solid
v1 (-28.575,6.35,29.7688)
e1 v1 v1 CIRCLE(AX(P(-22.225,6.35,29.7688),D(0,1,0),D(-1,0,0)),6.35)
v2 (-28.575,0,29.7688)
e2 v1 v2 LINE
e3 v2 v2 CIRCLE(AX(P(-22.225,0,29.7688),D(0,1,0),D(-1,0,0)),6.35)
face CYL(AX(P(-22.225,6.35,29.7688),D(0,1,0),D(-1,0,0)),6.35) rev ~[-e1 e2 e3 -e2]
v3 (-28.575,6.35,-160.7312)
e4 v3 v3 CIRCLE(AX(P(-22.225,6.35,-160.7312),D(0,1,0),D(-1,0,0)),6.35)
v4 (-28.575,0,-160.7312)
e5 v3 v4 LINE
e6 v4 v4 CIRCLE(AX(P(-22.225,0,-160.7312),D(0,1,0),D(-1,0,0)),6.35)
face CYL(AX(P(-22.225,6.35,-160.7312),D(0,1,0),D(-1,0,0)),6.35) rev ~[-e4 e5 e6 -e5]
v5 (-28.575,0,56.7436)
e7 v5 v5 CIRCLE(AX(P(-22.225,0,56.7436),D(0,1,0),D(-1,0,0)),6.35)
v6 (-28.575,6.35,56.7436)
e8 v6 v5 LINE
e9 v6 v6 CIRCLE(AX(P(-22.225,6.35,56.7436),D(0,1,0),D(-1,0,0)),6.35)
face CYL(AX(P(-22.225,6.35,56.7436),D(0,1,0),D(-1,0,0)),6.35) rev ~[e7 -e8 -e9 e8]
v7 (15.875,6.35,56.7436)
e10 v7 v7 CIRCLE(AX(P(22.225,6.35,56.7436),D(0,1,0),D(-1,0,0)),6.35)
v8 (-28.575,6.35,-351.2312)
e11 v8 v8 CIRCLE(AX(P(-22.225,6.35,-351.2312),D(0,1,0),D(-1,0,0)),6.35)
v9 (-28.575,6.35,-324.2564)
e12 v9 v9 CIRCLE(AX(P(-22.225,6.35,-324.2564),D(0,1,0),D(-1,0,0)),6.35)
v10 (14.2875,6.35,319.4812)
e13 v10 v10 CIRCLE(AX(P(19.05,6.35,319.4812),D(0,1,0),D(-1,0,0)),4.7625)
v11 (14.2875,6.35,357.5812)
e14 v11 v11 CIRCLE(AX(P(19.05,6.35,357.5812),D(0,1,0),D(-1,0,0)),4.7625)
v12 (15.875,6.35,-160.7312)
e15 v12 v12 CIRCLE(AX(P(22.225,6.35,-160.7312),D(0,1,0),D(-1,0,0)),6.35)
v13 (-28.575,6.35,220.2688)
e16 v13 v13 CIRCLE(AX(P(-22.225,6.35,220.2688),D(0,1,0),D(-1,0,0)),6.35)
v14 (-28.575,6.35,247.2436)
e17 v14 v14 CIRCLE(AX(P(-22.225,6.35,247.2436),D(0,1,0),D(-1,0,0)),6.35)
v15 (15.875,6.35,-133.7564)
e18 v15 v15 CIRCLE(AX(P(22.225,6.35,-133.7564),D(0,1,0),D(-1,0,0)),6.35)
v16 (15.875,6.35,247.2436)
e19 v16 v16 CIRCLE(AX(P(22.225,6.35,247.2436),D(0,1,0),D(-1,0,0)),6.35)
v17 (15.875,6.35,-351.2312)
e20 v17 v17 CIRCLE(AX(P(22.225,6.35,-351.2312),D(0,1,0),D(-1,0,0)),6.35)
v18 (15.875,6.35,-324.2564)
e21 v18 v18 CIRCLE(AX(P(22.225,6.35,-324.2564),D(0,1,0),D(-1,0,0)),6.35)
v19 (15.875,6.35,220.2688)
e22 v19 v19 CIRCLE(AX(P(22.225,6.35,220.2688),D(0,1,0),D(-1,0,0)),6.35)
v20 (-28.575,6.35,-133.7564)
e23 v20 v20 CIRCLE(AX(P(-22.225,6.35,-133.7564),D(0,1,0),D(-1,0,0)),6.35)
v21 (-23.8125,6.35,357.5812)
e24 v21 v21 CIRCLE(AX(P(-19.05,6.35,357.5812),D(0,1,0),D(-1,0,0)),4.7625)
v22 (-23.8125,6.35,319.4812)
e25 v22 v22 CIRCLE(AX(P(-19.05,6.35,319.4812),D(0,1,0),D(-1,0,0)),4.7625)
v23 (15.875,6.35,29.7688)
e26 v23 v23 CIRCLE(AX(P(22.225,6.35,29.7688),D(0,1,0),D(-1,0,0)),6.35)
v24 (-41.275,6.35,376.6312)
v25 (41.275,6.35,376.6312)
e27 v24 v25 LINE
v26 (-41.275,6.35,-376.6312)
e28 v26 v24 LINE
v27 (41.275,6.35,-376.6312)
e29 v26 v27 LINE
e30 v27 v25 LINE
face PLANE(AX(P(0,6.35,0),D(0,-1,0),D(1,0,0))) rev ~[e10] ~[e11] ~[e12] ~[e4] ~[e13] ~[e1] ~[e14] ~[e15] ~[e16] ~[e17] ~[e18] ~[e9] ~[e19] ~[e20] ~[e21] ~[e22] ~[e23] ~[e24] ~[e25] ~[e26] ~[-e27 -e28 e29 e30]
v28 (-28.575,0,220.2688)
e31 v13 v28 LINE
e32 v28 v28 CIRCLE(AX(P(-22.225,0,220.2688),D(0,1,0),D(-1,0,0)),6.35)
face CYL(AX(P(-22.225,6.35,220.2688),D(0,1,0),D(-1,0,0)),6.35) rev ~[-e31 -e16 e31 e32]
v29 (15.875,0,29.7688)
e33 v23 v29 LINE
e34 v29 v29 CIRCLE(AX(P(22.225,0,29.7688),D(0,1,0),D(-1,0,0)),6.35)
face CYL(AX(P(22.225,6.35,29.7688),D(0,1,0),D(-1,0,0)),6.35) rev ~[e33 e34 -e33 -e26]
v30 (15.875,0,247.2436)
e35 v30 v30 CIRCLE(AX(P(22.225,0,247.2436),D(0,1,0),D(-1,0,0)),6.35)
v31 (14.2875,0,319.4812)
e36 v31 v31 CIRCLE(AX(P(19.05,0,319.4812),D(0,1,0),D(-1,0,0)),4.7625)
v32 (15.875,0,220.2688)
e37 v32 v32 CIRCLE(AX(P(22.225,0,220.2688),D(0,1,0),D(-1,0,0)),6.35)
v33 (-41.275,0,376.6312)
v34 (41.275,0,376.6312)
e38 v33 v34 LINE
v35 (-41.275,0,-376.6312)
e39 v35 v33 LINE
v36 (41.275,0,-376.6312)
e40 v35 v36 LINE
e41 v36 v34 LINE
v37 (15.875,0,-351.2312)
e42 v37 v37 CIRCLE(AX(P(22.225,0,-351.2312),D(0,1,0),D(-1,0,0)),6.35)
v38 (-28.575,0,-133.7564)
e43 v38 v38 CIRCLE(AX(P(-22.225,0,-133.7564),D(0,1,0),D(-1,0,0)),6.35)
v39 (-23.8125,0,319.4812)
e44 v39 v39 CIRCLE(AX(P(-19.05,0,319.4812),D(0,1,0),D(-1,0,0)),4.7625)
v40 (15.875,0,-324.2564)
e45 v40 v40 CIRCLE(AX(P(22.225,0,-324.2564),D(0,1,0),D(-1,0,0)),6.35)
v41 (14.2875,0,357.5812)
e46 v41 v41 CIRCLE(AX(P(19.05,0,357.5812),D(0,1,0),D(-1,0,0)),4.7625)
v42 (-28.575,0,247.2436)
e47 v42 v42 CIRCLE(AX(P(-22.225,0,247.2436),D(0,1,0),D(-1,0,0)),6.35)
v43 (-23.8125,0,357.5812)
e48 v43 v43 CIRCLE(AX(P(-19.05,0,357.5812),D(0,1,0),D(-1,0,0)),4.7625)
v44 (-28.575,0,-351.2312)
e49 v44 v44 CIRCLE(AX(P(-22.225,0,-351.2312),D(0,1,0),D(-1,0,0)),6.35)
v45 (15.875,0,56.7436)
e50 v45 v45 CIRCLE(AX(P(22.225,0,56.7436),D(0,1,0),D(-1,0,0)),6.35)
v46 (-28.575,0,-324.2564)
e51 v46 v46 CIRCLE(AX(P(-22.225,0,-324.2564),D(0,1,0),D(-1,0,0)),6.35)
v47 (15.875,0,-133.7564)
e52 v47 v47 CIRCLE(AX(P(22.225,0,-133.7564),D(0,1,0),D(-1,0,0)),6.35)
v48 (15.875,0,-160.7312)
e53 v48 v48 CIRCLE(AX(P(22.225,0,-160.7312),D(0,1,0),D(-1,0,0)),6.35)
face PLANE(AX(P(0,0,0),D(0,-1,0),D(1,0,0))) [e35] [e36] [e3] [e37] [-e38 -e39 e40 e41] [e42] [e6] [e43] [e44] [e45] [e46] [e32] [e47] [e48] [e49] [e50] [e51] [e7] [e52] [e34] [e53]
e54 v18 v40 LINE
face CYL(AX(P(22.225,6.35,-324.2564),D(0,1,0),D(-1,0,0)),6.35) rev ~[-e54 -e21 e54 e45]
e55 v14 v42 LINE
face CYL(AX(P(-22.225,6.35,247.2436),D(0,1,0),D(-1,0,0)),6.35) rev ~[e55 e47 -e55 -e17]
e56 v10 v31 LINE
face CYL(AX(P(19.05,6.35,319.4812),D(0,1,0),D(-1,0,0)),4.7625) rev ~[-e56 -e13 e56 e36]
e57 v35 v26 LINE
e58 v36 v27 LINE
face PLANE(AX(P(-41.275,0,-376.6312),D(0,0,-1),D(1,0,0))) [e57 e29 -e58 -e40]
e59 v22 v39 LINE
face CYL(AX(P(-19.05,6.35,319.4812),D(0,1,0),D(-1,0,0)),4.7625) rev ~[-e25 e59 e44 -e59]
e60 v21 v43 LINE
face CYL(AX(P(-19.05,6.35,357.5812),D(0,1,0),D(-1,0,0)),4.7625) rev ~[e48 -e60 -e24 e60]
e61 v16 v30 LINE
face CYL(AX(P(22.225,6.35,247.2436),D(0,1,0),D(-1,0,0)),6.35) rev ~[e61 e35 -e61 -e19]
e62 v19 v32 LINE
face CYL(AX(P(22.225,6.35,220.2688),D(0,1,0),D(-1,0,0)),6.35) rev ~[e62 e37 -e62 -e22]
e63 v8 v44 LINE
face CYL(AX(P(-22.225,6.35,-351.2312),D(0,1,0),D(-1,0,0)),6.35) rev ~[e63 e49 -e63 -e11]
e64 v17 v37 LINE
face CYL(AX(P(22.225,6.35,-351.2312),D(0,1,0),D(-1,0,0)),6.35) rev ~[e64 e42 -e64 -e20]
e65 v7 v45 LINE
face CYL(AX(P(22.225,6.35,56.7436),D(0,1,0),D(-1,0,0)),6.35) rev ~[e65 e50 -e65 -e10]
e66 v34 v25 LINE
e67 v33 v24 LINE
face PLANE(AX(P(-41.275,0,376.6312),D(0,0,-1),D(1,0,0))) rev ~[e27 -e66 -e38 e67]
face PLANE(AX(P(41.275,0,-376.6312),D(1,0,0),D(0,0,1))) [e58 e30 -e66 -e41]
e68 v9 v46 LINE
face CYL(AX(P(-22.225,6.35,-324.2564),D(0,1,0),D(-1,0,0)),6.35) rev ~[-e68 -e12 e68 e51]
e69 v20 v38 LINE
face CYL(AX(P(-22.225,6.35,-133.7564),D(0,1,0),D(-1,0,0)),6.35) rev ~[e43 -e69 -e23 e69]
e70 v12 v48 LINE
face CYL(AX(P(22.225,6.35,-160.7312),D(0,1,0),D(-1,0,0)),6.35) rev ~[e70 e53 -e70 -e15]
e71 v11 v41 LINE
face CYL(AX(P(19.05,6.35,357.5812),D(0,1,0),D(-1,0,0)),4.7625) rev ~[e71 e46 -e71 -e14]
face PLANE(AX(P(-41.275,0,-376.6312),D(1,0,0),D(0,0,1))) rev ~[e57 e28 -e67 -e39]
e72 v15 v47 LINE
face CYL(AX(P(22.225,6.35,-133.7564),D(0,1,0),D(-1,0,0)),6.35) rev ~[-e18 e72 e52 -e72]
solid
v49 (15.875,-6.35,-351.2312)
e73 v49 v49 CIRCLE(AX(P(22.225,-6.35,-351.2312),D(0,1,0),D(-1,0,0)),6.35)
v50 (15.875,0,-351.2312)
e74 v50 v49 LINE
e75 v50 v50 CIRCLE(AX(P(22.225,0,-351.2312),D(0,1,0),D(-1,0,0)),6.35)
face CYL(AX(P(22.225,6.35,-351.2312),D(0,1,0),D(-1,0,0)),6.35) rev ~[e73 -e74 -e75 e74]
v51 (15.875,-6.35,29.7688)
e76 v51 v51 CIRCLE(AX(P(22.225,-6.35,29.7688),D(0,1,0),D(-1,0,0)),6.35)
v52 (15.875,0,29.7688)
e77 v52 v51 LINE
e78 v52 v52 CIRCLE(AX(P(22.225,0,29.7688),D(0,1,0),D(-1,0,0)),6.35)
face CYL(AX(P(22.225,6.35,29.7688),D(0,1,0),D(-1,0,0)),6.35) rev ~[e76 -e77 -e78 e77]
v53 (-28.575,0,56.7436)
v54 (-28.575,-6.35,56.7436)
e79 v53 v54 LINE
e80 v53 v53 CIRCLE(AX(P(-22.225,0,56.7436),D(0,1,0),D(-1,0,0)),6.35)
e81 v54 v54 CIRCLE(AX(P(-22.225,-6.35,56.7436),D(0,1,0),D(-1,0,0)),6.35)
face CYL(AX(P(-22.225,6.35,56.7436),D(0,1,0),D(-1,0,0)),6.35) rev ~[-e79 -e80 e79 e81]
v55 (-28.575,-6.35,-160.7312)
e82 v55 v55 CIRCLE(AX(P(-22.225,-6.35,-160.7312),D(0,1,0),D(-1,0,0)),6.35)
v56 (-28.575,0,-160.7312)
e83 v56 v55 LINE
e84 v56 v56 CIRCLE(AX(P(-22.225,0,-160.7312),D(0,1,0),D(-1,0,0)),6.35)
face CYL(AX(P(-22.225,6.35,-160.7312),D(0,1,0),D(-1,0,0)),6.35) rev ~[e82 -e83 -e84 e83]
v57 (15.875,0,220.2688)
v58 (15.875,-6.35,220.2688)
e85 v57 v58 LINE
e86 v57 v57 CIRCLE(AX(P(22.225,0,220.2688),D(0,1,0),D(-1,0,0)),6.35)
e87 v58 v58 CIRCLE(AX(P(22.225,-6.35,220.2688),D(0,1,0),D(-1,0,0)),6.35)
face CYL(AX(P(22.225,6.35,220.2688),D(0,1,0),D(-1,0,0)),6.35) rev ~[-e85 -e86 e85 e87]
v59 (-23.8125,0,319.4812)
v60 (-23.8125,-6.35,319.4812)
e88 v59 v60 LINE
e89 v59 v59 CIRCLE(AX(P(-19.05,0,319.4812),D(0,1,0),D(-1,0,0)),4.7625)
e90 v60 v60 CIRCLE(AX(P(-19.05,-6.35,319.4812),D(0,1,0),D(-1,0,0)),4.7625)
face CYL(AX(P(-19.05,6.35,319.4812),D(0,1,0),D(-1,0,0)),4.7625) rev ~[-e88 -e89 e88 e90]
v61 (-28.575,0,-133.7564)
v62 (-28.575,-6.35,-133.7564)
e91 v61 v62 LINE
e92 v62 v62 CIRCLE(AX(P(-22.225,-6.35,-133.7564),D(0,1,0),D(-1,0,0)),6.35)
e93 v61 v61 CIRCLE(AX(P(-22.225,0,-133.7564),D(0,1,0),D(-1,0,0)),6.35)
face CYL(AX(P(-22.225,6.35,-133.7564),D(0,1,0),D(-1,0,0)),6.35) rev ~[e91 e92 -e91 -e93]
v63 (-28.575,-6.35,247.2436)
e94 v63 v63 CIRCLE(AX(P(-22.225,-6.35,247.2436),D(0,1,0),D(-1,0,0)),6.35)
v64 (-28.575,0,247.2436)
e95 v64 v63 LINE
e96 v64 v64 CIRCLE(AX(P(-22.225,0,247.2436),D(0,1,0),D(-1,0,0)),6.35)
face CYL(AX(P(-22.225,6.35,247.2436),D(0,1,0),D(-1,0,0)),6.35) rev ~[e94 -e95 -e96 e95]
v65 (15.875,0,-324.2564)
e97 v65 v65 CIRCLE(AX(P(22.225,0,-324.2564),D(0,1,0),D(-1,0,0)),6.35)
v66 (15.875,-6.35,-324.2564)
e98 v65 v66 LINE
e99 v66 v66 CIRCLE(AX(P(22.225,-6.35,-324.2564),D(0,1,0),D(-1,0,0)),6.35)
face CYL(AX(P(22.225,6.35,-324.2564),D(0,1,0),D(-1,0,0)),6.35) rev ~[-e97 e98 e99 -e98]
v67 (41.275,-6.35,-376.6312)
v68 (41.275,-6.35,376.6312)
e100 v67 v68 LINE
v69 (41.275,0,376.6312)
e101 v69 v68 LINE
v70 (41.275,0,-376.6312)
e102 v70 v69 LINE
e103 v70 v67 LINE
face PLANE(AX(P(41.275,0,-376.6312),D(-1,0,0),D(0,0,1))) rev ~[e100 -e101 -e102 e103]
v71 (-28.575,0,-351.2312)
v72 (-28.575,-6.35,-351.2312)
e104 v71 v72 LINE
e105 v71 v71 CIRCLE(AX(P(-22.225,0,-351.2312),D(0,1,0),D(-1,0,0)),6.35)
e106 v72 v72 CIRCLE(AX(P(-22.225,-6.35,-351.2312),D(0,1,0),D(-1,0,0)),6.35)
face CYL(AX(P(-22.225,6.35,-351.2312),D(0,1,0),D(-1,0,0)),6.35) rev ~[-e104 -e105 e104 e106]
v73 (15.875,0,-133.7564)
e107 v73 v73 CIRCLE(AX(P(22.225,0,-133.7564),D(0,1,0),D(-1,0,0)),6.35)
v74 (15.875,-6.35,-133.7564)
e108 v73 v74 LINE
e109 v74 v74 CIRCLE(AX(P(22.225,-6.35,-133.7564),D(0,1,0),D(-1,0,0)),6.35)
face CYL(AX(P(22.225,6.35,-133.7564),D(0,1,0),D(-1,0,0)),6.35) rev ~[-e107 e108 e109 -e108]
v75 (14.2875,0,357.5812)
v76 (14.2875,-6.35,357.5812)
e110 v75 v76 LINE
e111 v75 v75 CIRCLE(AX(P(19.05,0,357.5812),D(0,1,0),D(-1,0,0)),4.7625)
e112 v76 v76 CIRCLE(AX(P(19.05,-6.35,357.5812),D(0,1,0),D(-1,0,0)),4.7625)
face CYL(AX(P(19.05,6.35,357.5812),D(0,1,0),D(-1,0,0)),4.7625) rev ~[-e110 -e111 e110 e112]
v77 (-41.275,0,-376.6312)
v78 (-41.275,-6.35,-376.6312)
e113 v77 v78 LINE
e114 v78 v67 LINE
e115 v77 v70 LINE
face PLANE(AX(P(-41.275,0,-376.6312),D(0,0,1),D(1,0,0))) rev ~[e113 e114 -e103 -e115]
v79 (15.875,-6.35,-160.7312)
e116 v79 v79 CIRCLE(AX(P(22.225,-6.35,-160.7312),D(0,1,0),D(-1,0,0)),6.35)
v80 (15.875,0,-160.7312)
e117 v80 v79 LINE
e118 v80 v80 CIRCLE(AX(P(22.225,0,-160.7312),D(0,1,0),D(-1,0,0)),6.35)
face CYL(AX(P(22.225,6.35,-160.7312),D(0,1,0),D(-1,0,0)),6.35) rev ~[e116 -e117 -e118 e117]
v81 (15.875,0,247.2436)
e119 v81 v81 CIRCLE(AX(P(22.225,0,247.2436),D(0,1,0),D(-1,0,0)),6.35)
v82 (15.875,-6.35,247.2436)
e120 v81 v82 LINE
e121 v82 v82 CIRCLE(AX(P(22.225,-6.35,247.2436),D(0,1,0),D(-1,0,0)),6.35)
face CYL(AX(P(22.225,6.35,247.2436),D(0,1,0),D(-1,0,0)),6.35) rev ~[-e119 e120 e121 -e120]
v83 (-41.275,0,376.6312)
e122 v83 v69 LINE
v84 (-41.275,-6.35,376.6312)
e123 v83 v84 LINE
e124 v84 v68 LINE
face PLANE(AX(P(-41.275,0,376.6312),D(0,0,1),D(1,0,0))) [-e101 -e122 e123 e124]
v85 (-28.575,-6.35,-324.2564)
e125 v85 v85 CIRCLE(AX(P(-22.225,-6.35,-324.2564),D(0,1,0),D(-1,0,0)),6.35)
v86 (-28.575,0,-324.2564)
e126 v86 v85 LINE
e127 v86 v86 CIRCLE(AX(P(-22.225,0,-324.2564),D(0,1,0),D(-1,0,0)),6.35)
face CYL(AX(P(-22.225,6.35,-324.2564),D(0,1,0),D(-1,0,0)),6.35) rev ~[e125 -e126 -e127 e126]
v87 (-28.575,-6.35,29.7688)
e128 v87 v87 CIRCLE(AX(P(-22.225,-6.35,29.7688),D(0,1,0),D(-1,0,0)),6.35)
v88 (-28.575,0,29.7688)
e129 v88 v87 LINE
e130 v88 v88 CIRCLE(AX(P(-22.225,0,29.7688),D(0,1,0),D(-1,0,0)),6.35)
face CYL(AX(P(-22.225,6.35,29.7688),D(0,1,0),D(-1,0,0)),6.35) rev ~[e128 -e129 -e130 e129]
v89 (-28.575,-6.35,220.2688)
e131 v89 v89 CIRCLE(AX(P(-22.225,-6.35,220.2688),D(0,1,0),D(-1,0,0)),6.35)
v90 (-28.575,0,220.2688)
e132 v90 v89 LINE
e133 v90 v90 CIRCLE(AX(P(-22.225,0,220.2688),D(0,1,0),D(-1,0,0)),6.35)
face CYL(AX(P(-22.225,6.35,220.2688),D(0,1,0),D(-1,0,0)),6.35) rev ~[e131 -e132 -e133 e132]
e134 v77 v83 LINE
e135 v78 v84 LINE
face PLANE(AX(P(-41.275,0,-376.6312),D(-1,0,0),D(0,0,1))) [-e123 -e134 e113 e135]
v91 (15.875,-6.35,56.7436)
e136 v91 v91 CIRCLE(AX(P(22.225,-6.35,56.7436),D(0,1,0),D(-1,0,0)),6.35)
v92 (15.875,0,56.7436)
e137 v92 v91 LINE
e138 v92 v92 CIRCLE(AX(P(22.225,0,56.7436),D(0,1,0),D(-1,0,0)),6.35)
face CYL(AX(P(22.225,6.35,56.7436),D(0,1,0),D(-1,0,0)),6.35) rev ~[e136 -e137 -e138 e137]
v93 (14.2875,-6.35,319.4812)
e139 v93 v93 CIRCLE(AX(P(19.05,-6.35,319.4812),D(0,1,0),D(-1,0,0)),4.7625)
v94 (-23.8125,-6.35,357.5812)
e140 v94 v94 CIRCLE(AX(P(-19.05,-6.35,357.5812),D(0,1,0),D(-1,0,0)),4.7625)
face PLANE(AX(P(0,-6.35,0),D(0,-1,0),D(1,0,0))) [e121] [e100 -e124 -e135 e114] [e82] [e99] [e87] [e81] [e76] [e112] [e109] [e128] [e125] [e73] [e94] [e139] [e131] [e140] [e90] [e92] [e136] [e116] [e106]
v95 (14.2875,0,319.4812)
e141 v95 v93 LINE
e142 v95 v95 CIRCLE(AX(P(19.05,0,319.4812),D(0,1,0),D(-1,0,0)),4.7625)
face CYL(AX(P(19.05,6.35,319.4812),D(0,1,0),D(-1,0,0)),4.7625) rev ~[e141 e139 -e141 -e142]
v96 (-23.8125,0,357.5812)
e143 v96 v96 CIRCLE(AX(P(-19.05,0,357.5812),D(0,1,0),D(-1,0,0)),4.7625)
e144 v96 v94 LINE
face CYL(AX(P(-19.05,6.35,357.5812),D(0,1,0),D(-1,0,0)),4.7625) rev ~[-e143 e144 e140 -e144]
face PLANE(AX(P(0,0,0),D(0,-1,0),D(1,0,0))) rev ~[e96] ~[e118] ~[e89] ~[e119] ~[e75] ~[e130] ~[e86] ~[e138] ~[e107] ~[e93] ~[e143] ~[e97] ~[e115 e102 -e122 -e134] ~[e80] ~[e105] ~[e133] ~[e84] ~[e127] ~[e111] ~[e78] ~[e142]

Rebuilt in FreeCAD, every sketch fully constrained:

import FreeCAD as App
import Part
import Sketcher

V = App.Vector
Q = App.Units.Quantity


def add_polygon(sketch, points):
    """Adds a closed chain of lines whose ends are joined by coincident constraints."""
    first, n = sketch.GeometryCount, len(points)
    for a, b in zip(points, points[1:] + points[:1]):
        sketch.addGeometry(Part.LineSegment(App.Vector(*a, 0), App.Vector(*b, 0)), False)
    for i in range(n):
        sketch.addConstraint(Sketcher.Constraint("Coincident", first + i, 2, first + (i + 1) % n, 1))

doc = App.newDocument("Part")
body = doc.addObject("PartDesign::Body", "Body")

sketch1 = doc.addObject("Sketcher::SketchObject", "Sketch")
body.addObject(sketch1)
sketch1.AttachmentSupport = (doc.XZ_Plane, [""])
sketch1.MapMode = "FlatFace"
add_polygon(sketch1, [(-41.275, 376.6312), (-41.275, -376.6312), (41.275, -376.6312), (41.275, 376.6312)])
sketch1.addConstraint([
    Sketcher.Constraint("Vertical", 0),
    Sketcher.Constraint("Horizontal", 1),
    Sketcher.Constraint("Vertical", 2),
    Sketcher.Constraint("Horizontal", 3),
    Sketcher.Constraint("Symmetric", 0, 2, 2, 2, -1, 1),
    Sketcher.Constraint("DistanceX", 1, 1, 1, 2, Q("3.25 in")),
    Sketcher.Constraint("DistanceY", 0, 2, 0, 1, Q("29.656 in")),
])
pad1 = doc.addObject("PartDesign::Pad", "Pad")
body.addObject(pad1)
pad1.Profile = sketch1
pad1.Length = Q("0.25 in")
pad1.Reversed = True
body2 = doc.addObject("PartDesign::Body", "Body001")

sketch2 = doc.addObject("Sketcher::SketchObject", "Sketch001")
body2.addObject(sketch2)
sketch2.AttachmentSupport = (doc.getObject("XZ_Plane001"), [""])
sketch2.MapMode = "FlatFace"
add_polygon(sketch2, [(-41.275, 376.6312), (-41.275, -376.6312), (41.275, -376.6312), (41.275, 376.6312)])
sketch2.addConstraint([
    Sketcher.Constraint("Vertical", 0),
    Sketcher.Constraint("Horizontal", 1),
    Sketcher.Constraint("Vertical", 2),
    Sketcher.Constraint("Horizontal", 3),
    Sketcher.Constraint("Symmetric", 0, 2, 2, 2, -1, 1),
    Sketcher.Constraint("DistanceX", 1, 1, 1, 2, Q("3.25 in")),
    Sketcher.Constraint("DistanceY", 0, 2, 0, 1, Q("29.656 in")),
])
pad2 = doc.addObject("PartDesign::Pad", "Pad001")
body2.addObject(pad2)
pad2.Profile = sketch2
pad2.Length = Q("0.25 in")
body3 = doc.addObject("PartDesign::Body", "Body002")
body3.AllowCompound = True

sketch3 = doc.addObject("Sketcher::SketchObject", "Sketch002")
body3.addObject(sketch3)
sketch3.AttachmentSupport = (doc.getObject("XZ_Plane002"), [""])
sketch3.MapMode = "FlatFace"
sketch3.AttachmentOffset = App.Placement(V(0, 0, -0.25 * 25.4), App.Rotation())
sketch3.addGeometry([
    Part.Circle(V(19.05, 357.5812, 0), V(0, 0, 1), 4.7625),
    Part.Circle(V(-19.05, 357.5812, 0), V(0, 0, 1), 4.7625),
    Part.Circle(V(-19.05, 319.4812, 0), V(0, 0, 1), 4.7625),
    Part.Circle(V(19.05, 319.4812, 0), V(0, 0, 1), 4.7625),
    Part.Circle(V(-22.225, -351.2312, 0), V(0, 0, 1), 6.35),
    Part.Circle(V(-22.225, -324.2564, 0), V(0, 0, 1), 6.35),
    Part.Circle(V(-22.225, -133.7564, 0), V(0, 0, 1), 6.35),
    Part.Circle(V(-22.225, -160.7312, 0), V(0, 0, 1), 6.35),
    Part.Circle(V(-22.225, 56.7436, 0), V(0, 0, 1), 6.35),
    Part.Circle(V(-22.225, 29.7688, 0), V(0, 0, 1), 6.35),
    Part.Circle(V(-22.225, 247.2436, 0), V(0, 0, 1), 6.35),
    Part.Circle(V(-22.225, 220.2688, 0), V(0, 0, 1), 6.35),
    Part.Circle(V(22.225, -324.2564, 0), V(0, 0, 1), 6.35),
    Part.Circle(V(22.225, -351.2312, 0), V(0, 0, 1), 6.35),
    Part.Circle(V(22.225, -133.7564, 0), V(0, 0, 1), 6.35),
    Part.Circle(V(22.225, -160.7312, 0), V(0, 0, 1), 6.35),
    Part.Circle(V(22.225, 56.7436, 0), V(0, 0, 1), 6.35),
    Part.Circle(V(22.225, 29.7688, 0), V(0, 0, 1), 6.35),
    Part.Circle(V(22.225, 247.2436, 0), V(0, 0, 1), 6.35),
    Part.Circle(V(22.225, 220.2688, 0), V(0, 0, 1), 6.35),
], False)
sketch3.addConstraint([
    Sketcher.Constraint("Equal", 0, 1),
    Sketcher.Constraint("Equal", 1, 2),
    Sketcher.Constraint("Equal", 2, 3),
    Sketcher.Constraint("Equal", 4, 5),
    Sketcher.Constraint("Equal", 5, 6),
    Sketcher.Constraint("Equal", 6, 7),
    Sketcher.Constraint("Equal", 7, 8),
    Sketcher.Constraint("Equal", 8, 9),
    Sketcher.Constraint("Equal", 9, 10),
    Sketcher.Constraint("Equal", 10, 11),
    Sketcher.Constraint("Equal", 11, 12),
    Sketcher.Constraint("Equal", 12, 13),
    Sketcher.Constraint("Equal", 13, 14),
    Sketcher.Constraint("Equal", 14, 15),
    Sketcher.Constraint("Equal", 15, 16),
    Sketcher.Constraint("Equal", 16, 17),
    Sketcher.Constraint("Equal", 17, 18),
    Sketcher.Constraint("Equal", 18, 19),
    Sketcher.Constraint("Symmetric", 0, 3, 1, 3, -2),
    Sketcher.Constraint("Symmetric", 2, 3, 3, 3, -2),
    Sketcher.Constraint("Symmetric", 5, 3, 12, 3, -2),
    Sketcher.Constraint("Symmetric", 4, 3, 13, 3, -2),
    Sketcher.Constraint("Symmetric", 6, 3, 14, 3, -2),
    Sketcher.Constraint("Symmetric", 7, 3, 15, 3, -2),
    Sketcher.Constraint("Symmetric", 8, 3, 16, 3, -2),
    Sketcher.Constraint("Symmetric", 9, 3, 17, 3, -2),
    Sketcher.Constraint("Symmetric", 10, 3, 18, 3, -2),
    Sketcher.Constraint("Symmetric", 11, 3, 19, 3, -2),
    Sketcher.Constraint("Vertical", 1, 3, 2, 3),
    Sketcher.Constraint("Vertical", 4, 3, 5, 3),
    Sketcher.Constraint("Vertical", 5, 3, 6, 3),
    Sketcher.Constraint("Vertical", 6, 3, 7, 3),
    Sketcher.Constraint("Vertical", 7, 3, 8, 3),
    Sketcher.Constraint("Vertical", 8, 3, 9, 3),
    Sketcher.Constraint("Vertical", 9, 3, 10, 3),
    Sketcher.Constraint("Vertical", 10, 3, 11, 3),
    Sketcher.Constraint("Diameter", 4, Q("0.5 in")),
    Sketcher.Constraint("Diameter", 0, Q("0.375 in")),
    Sketcher.Constraint("DistanceX", 1, 3, 0, 3, Q("1.5 in")),
    Sketcher.Constraint("DistanceY", 2, 3, 1, 3, Q("1.5 in")),
    Sketcher.Constraint("DistanceY", 5, 3, 6, 3, Q("7.5 in")),
    Sketcher.Constraint("DistanceY", 4, 3, 7, 3, Q("7.5 in")),
    Sketcher.Constraint("DistanceY", 6, 3, 8, 3, Q("7.5 in")),
    Sketcher.Constraint("DistanceY", 7, 3, 9, 3, Q("7.5 in")),
    Sketcher.Constraint("DistanceY", 8, 3, 10, 3, Q("7.5 in")),
    Sketcher.Constraint("DistanceX", 5, 3, 12, 3, Q("1.75 in")),
    Sketcher.Constraint("DistanceY", -1, 1, 0, 3, Q("14.078 in")),
    Sketcher.Constraint("DistanceY", 4, 3, -1, 1, Q("13.828 in")),
    Sketcher.Constraint("DistanceY", 5, 3, -1, 1, Q("12.766 in")),
    Sketcher.Constraint("DistanceY", -1, 1, 11, 3, Q("8.672 in")),
])
pad3 = doc.addObject("PartDesign::Pad", "Pad002")
body3.addObject(pad3)
pad3.Profile = sketch3
pad3.Length = 12.701
doc.recompute()

body4 = doc.addObject("PartDesign::Body", "Body003")
body4.BaseFeature = body3
boolean = doc.addObject("PartDesign::Boolean", "Boolean")
body.addObject(boolean)
boolean.Type = "Cut"
boolean.addObjects([body4])
doc.recompute()

boolean2 = doc.addObject("PartDesign::Boolean", "Boolean001")
body2.addObject(boolean2)
boolean2.Type = "Cut"
boolean2.addObjects([body3])

doc.recompute()
